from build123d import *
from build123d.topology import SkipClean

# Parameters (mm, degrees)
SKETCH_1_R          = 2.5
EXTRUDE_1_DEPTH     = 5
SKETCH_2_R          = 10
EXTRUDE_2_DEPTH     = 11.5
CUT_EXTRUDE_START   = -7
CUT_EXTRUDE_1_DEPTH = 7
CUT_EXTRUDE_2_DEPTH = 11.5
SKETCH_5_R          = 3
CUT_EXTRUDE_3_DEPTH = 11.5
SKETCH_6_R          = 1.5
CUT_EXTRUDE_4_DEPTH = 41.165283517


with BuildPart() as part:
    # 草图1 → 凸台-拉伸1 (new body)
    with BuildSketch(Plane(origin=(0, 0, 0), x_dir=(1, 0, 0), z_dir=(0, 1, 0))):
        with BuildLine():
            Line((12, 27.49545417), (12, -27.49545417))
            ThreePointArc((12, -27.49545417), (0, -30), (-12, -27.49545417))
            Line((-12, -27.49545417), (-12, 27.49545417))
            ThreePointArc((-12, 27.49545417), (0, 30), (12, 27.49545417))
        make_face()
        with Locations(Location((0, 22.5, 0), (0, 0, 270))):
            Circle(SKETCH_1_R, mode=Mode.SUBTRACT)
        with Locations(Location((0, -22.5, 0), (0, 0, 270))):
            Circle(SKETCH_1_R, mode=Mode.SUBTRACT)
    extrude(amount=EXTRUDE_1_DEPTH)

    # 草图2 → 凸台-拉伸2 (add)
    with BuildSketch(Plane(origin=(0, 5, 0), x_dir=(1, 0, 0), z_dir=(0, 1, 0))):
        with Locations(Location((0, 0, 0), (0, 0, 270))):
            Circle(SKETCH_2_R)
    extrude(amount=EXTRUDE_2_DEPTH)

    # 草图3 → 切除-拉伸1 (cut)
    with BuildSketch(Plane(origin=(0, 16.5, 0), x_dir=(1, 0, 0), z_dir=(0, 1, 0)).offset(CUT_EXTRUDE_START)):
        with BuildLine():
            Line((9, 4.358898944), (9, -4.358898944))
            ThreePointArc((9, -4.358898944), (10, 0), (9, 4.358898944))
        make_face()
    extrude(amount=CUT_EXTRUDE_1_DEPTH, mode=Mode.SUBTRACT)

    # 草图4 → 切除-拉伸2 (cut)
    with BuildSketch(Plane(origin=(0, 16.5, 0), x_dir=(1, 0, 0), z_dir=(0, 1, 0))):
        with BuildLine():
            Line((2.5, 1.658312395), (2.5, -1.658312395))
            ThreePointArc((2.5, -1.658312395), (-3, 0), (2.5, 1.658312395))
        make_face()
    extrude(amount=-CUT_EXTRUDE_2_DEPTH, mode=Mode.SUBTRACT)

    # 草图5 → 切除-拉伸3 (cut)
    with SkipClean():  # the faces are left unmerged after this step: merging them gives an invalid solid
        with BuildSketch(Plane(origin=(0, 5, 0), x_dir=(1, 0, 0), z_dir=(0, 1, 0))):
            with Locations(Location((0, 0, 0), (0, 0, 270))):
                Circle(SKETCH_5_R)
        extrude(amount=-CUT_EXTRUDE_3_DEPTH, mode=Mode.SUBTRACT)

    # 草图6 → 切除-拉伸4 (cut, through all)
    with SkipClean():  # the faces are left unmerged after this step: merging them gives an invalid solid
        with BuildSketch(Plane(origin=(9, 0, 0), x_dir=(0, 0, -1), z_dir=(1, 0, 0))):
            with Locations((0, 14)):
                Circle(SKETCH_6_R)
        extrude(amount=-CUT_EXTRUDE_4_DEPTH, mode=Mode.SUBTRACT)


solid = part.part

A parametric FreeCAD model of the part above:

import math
import FreeCAD as App
import Part
import Sketcher
Q = App.Units.Quantity

doc = App.newDocument("Part")
body = doc.addObject("PartDesign::Body", "Body")

sketch1 = body.newObject("Sketcher::SketchObject", "Sketch")
sketch1.AttachmentSupport = (doc.getObject("XZ_Plane"), [""])
sketch1.MapMode = "FlatFace"
sketch1.addGeometry(Part.LineSegment(App.Vector(12, 27.5, 0), App.Vector(12, -27.5, 0)), False)
sketch1.addGeometry(Part.ArcOfCircle(Part.Circle(App.Vector(0, 0, 0), App.Vector(0, 0, 1), 30), math.radians(-114), math.radians(-66)), False)
sketch1.addGeometry(Part.LineSegment(App.Vector(-12, -27.5, 0), App.Vector(-12, 27.5, 0)), False)
sketch1.addGeometry(Part.ArcOfCircle(Part.Circle(App.Vector(0, 0, 0), App.Vector(0, 0, 1), 30), math.radians(66), math.radians(114)), False)
sketch1.addGeometry(Part.Circle(App.Vector(0, 22.5, 0), App.Vector(0, 0, 1), 2.5), False)
sketch1.addGeometry(Part.Circle(App.Vector(0, -22.5, 0), App.Vector(0, 0, 1), 2.5), False)
sketch1.addConstraint(Sketcher.Constraint("Coincident", 0, 2, 1, 2))
sketch1.addConstraint(Sketcher.Constraint("Coincident", 1, 1, 2, 1))
sketch1.addConstraint(Sketcher.Constraint("Coincident", 2, 2, 3, 2))
sketch1.addConstraint(Sketcher.Constraint("Coincident", 3, 1, 0, 1))
sketch1.addConstraint(Sketcher.Constraint("Vertical", 0))
sketch1.addConstraint(Sketcher.Constraint("Vertical", 2))
sketch1.addConstraint(Sketcher.Constraint("Coincident", 1, 3, -1, 1))
sketch1.addConstraint(Sketcher.Constraint("Coincident", 3, 3, -1, 1))
sketch1.addConstraint(Sketcher.Constraint("Equal", 1, 3))
sketch1.addConstraint(Sketcher.Constraint("Equal", 4, 5))
sketch1.addConstraint(Sketcher.Constraint("Symmetric", 4, 3, 5, 3, -1, 1))
sketch1.addConstraint(Sketcher.Constraint("PointOnObject", 4, 3, -2))
sketch1.addConstraint(Sketcher.Constraint("Horizontal", 0, 2, 1, 1))
sketch1.addConstraint(Sketcher.Constraint("Diameter", 4, Q("5 mm")))
sketch1.addConstraint(Sketcher.Constraint("Radius", 1, Q("30 mm")))
sketch1.addConstraint(Sketcher.Constraint("DistanceX", -1, 1, 0, 2, Q("12 mm")))
sketch1.addConstraint(Sketcher.Constraint("DistanceY", 5, 3, 4, 3, Q("45 mm")))
pad1 = body.newObject("PartDesign::Pad", "Pad")
pad1.Profile = sketch1
pad1.Length = 5
pad1.Reversed = True

sketch2 = body.newObject("Sketcher::SketchObject", "Sketch001")
sketch2.AttachmentSupport = (doc.getObject("XZ_Plane"), [""])
sketch2.MapMode = "FlatFace"
sketch2.AttachmentOffset = App.Placement(App.Vector(0, 0, -5), App.Rotation())
sketch2.addGeometry(Part.Circle(App.Vector(0, 0, 0), App.Vector(0, 0, 1), 10), False)
sketch2.addConstraint(Sketcher.Constraint("Coincident", 0, 3, -1, 1))
sketch2.addConstraint(Sketcher.Constraint("Diameter", 0, Q("20 mm")))
pad2 = body.newObject("PartDesign::Pad", "Pad001")
pad2.Profile = sketch2
pad2.Length = 11.5
pad2.Reversed = True

sketch3 = body.newObject("Sketcher::SketchObject", "Sketch002")
sketch3.AttachmentSupport = (doc.getObject("XZ_Plane"), [""])
sketch3.MapMode = "FlatFace"
sketch3.AttachmentOffset = App.Placement(App.Vector(0, 0, -9.5), App.Rotation())
sketch3.addGeometry(Part.LineSegment(App.Vector(9, -4, 0), App.Vector(9, 4, 0)), False)
sketch3.addGeometry(Part.ArcOfCircle(Part.Circle(App.Vector(0, 0, 0), App.Vector(0, 0, 1), 10), math.radians(-26), math.radians(26)), False)
sketch3.addConstraint(Sketcher.Constraint("Coincident", 0, 1, 1, 1))
sketch3.addConstraint(Sketcher.Constraint("Coincident", 1, 2, 0, 2))
sketch3.addConstraint(Sketcher.Constraint("Vertical", 0))
sketch3.addConstraint(Sketcher.Constraint("Coincident", 1, 3, -1, 1))
sketch3.addConstraint(Sketcher.Constraint("Radius", 1, Q("10 mm")))
sketch3.addConstraint(Sketcher.Constraint("DistanceX", -1, 1, 0, 1, Q("9 mm")))
pocket1 = body.newObject("PartDesign::Pocket", "Pocket")
pocket1.Profile = sketch3
pocket1.Length = 7

sketch4 = body.newObject("Sketcher::SketchObject", "Sketch003")
sketch4.AttachmentSupport = (doc.getObject("XZ_Plane"), [""])
sketch4.MapMode = "FlatFace"
sketch4.AttachmentOffset = App.Placement(App.Vector(0, 0, -16.5), App.Rotation())
sketch4.addGeometry(Part.LineSegment(App.Vector(2.5, 1.7, 0), App.Vector(2.5, -1.7, 0)), False)
sketch4.addGeometry(Part.ArcOfCircle(Part.Circle(App.Vector(0, 0, 0), App.Vector(0, 0, 1), 3), math.radians(34), math.radians(326)), False)
sketch4.addConstraint(Sketcher.Constraint("Coincident", 0, 1, 1, 1))
sketch4.addConstraint(Sketcher.Constraint("Coincident", 1, 2, 0, 2))
sketch4.addConstraint(Sketcher.Constraint("Vertical", 0))
sketch4.addConstraint(Sketcher.Constraint("Coincident", 1, 3, -1, 1))
sketch4.addConstraint(Sketcher.Constraint("Radius", 1, Q("3 mm")))
sketch4.addConstraint(Sketcher.Constraint("DistanceX", -1, 1, 0, 1, Q("2.5 mm")))
pocket2 = body.newObject("PartDesign::Pocket", "Pocket001")
pocket2.Profile = sketch4
pocket2.Length = 11.5
pocket2.Reversed = True

sketch5 = body.newObject("Sketcher::SketchObject", "Sketch004")
sketch5.AttachmentSupport = (doc.getObject("XZ_Plane"), [""])
sketch5.MapMode = "FlatFace"
sketch5.AttachmentOffset = App.Placement(App.Vector(0, 0, -5), App.Rotation())
sketch5.addGeometry(Part.Circle(App.Vector(0, 0, 0), App.Vector(0, 0, 1), 3), False)
sketch5.addConstraint(Sketcher.Constraint("Coincident", 0, 3, -1, 1))
sketch5.addConstraint(Sketcher.Constraint("Diameter", 0, Q("6 mm")))
pocket3 = body.newObject("PartDesign::Pocket", "Pocket002")
pocket3.Profile = sketch5
pocket3.Length = 11.5
pocket3.Reversed = True

sketch6 = body.newObject("Sketcher::SketchObject", "Sketch005")
sketch6.AttachmentSupport = (doc.getObject("YZ_Plane"), [""])
sketch6.MapMode = "FlatFace"
sketch6.AttachmentOffset = App.Placement(App.Vector(0, 0, 9), App.Rotation())
sketch6.addGeometry(Part.Circle(App.Vector(14, 0, 0), App.Vector(0, 0, 1), 1.5), False)
sketch6.addConstraint(Sketcher.Constraint("PointOnObject", 0, 3, -1))
sketch6.addConstraint(Sketcher.Constraint("Diameter", 0, Q("3 mm")))
sketch6.addConstraint(Sketcher.Constraint("DistanceX", -1, 1, 0, 3, Q("14 mm")))
pocket4 = body.newObject("PartDesign::Pocket", "Pocket003")
pocket4.Profile = sketch6
pocket4.Type = "ThroughAll"

doc.recompute()
